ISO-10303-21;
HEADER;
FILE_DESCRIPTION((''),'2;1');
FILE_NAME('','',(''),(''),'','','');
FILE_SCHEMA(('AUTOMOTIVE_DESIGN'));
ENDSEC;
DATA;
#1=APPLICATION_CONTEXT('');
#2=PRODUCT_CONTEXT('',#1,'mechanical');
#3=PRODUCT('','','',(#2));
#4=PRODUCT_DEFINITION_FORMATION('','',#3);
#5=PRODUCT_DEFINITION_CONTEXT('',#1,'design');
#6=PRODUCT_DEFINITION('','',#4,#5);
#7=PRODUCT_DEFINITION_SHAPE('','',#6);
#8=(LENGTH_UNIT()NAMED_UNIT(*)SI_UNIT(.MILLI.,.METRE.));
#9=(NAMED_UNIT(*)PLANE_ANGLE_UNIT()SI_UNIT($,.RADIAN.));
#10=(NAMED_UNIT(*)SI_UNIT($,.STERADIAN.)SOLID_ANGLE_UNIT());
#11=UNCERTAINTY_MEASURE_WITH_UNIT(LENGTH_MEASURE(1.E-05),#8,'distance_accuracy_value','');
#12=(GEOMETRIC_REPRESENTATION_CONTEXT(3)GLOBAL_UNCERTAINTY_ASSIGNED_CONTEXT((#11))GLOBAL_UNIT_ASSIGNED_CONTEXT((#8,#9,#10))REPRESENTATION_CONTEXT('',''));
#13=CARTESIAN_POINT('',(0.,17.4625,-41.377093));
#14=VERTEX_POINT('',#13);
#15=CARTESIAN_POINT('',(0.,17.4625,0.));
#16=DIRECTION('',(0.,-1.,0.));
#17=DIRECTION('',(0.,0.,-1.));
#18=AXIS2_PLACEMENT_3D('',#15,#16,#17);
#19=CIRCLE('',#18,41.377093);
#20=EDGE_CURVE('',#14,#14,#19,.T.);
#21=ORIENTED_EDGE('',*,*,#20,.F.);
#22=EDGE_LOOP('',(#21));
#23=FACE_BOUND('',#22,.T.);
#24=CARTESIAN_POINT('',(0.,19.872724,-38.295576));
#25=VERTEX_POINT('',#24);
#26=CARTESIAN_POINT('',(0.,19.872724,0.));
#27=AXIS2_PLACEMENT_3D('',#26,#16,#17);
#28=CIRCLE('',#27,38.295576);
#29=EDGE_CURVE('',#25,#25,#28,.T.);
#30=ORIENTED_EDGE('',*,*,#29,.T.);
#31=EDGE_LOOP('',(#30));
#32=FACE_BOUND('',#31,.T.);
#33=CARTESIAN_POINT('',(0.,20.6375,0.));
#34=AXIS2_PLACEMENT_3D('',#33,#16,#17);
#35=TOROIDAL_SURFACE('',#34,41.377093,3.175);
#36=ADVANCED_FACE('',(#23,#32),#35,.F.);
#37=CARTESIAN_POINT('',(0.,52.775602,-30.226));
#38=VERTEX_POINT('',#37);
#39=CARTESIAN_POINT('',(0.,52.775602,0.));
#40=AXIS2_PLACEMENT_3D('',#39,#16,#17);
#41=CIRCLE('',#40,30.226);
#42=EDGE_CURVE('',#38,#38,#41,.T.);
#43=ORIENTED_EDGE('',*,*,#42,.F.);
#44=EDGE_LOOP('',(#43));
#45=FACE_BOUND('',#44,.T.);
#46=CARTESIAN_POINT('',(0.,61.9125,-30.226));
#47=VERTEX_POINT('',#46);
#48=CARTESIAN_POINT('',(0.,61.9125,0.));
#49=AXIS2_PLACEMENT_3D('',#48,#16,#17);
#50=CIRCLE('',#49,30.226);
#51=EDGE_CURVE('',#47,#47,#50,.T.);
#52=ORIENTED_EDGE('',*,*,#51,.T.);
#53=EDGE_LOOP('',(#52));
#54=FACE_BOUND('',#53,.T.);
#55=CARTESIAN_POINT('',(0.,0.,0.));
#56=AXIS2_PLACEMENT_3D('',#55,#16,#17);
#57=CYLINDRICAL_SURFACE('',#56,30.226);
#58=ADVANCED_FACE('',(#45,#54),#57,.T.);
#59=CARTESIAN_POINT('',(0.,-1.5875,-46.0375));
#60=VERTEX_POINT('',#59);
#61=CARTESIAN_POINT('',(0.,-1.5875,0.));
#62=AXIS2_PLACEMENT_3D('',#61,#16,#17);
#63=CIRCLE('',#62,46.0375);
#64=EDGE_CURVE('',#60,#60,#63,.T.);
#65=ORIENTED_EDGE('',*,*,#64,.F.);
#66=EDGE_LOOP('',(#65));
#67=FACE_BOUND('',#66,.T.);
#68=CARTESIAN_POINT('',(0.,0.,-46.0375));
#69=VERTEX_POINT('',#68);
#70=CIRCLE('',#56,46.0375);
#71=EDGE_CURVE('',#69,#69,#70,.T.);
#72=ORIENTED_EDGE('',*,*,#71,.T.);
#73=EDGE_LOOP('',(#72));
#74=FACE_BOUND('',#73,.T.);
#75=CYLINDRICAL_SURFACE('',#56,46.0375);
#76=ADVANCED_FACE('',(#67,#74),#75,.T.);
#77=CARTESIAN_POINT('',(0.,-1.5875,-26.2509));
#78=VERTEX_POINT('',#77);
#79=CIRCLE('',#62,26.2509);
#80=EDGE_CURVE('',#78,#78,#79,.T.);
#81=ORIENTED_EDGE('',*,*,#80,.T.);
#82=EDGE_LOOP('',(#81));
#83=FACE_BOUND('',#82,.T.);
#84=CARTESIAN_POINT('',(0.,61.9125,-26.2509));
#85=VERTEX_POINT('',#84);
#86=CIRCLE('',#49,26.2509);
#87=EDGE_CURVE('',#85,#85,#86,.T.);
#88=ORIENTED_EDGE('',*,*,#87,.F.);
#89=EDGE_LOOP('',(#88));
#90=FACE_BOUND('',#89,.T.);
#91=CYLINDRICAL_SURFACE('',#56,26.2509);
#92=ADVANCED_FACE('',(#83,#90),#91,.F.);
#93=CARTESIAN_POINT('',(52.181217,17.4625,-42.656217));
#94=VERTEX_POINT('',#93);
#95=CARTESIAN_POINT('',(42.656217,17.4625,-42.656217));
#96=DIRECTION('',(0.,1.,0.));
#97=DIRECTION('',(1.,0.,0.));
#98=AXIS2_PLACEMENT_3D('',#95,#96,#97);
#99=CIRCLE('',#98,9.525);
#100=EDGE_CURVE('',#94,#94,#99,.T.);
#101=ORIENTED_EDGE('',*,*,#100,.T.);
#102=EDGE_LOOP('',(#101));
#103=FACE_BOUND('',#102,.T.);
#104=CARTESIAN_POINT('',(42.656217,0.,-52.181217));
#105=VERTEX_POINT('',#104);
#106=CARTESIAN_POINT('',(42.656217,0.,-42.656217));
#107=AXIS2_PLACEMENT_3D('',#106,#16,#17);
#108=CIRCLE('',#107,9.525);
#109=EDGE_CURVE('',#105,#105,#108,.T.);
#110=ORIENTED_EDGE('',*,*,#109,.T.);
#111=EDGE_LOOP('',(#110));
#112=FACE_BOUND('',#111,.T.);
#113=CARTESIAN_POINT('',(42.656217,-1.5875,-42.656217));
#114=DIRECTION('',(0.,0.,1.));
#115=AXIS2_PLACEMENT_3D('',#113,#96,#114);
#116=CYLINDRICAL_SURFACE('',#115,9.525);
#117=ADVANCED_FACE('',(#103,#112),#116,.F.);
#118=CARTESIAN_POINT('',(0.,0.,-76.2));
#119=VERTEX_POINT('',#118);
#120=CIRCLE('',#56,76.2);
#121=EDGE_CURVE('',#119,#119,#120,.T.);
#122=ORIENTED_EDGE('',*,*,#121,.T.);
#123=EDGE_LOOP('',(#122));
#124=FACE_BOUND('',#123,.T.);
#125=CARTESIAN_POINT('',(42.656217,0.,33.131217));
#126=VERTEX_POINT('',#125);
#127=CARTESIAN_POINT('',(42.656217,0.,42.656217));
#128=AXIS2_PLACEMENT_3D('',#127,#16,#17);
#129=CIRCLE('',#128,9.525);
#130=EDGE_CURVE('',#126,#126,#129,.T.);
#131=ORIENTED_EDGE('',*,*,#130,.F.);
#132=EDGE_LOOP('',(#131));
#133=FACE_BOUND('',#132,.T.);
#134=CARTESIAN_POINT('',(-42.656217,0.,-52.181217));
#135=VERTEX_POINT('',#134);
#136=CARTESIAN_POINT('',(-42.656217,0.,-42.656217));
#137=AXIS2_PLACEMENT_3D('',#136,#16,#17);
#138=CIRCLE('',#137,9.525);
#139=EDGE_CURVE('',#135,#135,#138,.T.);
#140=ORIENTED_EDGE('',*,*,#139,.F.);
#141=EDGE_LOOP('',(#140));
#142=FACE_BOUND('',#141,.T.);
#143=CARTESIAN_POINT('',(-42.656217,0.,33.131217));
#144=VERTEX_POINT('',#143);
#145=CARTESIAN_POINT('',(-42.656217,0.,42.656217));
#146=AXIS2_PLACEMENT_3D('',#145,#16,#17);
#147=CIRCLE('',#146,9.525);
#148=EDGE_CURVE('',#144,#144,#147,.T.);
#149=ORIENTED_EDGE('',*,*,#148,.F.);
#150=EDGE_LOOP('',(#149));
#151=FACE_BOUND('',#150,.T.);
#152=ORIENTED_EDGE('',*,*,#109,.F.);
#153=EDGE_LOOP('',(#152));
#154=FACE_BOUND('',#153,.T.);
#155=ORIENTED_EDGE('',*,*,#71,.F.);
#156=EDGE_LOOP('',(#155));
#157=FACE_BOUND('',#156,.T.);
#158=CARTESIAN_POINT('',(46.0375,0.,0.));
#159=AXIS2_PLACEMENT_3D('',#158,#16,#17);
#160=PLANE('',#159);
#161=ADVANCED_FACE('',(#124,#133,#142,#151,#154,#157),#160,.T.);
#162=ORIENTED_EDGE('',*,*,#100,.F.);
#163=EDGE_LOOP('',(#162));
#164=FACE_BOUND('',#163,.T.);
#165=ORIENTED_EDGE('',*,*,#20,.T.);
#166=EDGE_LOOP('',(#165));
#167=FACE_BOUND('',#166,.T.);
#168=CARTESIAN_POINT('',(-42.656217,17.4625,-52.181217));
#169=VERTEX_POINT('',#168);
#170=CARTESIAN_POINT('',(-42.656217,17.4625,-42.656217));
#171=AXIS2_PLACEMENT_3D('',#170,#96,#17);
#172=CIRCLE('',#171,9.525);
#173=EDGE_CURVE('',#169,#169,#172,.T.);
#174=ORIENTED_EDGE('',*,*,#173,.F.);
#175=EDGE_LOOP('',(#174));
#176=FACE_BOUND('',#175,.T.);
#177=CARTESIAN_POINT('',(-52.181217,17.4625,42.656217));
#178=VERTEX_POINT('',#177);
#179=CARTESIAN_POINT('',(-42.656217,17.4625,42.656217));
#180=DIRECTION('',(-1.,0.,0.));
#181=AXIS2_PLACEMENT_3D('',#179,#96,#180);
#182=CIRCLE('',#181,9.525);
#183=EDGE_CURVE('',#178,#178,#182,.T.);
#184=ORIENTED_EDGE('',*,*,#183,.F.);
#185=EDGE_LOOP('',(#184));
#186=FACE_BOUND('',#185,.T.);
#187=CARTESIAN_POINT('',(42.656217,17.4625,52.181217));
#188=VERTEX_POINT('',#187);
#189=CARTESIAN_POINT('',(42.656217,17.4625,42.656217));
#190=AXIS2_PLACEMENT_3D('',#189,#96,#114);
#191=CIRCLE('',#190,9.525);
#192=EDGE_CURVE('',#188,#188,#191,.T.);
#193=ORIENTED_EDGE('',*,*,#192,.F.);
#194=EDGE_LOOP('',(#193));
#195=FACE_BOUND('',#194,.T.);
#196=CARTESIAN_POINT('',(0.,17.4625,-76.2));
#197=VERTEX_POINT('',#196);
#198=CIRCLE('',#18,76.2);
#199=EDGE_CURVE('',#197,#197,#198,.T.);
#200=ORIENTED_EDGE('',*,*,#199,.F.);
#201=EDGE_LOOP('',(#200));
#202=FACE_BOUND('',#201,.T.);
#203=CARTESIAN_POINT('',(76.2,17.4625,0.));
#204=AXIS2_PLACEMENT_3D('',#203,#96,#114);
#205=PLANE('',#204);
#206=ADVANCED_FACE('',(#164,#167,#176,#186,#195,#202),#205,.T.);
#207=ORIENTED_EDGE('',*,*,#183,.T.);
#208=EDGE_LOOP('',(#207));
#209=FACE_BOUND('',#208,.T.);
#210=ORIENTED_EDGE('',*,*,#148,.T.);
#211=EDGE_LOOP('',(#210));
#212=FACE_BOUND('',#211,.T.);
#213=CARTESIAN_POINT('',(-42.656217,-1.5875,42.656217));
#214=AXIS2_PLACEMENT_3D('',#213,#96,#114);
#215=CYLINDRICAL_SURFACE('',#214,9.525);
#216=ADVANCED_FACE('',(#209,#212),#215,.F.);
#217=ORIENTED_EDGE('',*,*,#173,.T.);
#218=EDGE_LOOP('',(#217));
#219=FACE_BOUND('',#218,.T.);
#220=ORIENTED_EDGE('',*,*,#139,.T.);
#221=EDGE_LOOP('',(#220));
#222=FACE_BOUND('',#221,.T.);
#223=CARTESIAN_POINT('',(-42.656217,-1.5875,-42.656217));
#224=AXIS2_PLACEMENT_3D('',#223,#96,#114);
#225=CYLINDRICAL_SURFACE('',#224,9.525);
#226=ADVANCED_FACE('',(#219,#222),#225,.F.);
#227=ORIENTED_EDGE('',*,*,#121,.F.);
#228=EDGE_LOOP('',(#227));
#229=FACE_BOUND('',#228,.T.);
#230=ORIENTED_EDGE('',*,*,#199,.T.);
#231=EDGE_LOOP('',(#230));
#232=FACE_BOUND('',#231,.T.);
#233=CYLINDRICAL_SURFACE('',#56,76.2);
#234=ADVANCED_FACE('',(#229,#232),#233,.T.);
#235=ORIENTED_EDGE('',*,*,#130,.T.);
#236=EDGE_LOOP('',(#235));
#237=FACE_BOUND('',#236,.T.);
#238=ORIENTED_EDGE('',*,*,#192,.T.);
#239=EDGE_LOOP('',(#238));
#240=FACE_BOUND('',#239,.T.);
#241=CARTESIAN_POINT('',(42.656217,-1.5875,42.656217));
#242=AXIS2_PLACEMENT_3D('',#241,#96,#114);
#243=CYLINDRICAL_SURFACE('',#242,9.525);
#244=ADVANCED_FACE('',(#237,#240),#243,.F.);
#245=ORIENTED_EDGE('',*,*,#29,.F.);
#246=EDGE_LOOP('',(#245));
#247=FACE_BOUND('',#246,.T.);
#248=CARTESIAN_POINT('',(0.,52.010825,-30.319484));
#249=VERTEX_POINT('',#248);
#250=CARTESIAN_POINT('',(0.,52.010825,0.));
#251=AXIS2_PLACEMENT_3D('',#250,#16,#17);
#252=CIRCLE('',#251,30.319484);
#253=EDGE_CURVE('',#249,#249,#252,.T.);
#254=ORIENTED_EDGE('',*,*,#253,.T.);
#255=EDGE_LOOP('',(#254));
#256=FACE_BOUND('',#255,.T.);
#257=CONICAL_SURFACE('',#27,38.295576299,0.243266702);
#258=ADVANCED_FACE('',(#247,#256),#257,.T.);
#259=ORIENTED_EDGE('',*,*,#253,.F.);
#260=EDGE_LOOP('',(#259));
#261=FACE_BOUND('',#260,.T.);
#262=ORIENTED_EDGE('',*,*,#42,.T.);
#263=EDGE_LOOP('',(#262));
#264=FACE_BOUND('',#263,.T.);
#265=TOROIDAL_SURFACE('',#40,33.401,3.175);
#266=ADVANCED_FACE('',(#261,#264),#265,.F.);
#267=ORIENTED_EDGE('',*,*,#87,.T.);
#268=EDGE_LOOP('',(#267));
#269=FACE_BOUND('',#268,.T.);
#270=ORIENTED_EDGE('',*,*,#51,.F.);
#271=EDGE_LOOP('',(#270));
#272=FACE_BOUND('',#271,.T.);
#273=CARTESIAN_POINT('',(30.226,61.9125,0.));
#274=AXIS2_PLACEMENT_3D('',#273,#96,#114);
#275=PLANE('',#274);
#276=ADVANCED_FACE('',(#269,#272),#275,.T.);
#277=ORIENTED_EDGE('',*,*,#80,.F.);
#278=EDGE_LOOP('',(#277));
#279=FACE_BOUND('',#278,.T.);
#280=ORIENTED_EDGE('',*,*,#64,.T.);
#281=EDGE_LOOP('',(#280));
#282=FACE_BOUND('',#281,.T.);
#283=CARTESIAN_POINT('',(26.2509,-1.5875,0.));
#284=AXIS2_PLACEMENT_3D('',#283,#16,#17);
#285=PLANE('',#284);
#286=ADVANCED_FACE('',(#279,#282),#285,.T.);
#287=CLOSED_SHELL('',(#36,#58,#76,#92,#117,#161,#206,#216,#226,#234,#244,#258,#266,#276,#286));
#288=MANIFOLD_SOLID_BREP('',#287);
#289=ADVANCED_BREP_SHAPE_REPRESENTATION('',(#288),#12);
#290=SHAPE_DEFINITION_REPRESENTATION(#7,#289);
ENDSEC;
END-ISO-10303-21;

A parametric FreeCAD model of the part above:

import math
import FreeCAD as App
import Part
import Sketcher
Q = App.Units.Quantity

doc = App.newDocument("Part")
params = doc.addObject("Spreadsheet::Sheet", "Params")
for row, (alias, value) in enumerate([
    ("sketch1_height", "2.5 in"),
    ("sketch1_radius", "0.125 in"),
    ("sketch1_width", "0.779 in"),
    ("sketch1_width2", "1.1875 in"),
    ("sketch1_height2", "0.0625 in"),
    ("revolution_angle", "360 deg"),
    ("sketch2_diameter", "0.75 in"),
], start=1):
    params.set(f"A{row}", alias)
    params.set(f"B{row}", "=" + value)
    params.setAlias(f"B{row}", alias)

body = doc.addObject("PartDesign::Body", "Body")

# Sketch on XY plane
sketch1 = body.newObject("Sketcher::SketchObject", "Sketch")
sketch1.AttachmentSupport = (doc.getObject("XY_Plane"), [""])
sketch1.MapMode = "FlatFace"
sketch1.addGeometry([
    Part.LineSegment(App.Vector(26.3, 61.9, 0), App.Vector(26.3, -1.6, 0)),  # 0
    Part.LineSegment(App.Vector(26.3, -1.6, 0), App.Vector(46, -1.6, 0)),  # 1
    Part.LineSegment(App.Vector(46, -1.6, 0), App.Vector(46, 0, 0)),  # 2
    Part.LineSegment(App.Vector(46, 0, 0), App.Vector(76.2, 0, 0)),  # 3
    Part.LineSegment(App.Vector(76.2, 0, 0), App.Vector(76.2, 17.5, 0)),  # 4
    Part.LineSegment(App.Vector(76.2, 17.5, 0), App.Vector(41.4, 17.5, 0)),  # 5
    Part.ArcOfCircle(Part.Circle(App.Vector(41.4, 20.6, 0), App.Vector(0, 0, 1), 3.2), math.radians(-166), math.radians(-90)),  # 6
    Part.LineSegment(App.Vector(38.3, 19.9, 0), App.Vector(30.3, 52, 0)),  # 7
    Part.ArcOfCircle(Part.Circle(App.Vector(33.4, 52.8, 0), App.Vector(0, 0, 1), 3.2), math.radians(180), math.radians(193.94)),  # 8
    Part.LineSegment(App.Vector(30.2, 52.8, 0), App.Vector(30.2, 61.9, 0)),  # 9
    Part.LineSegment(App.Vector(30.2, 61.9, 0), App.Vector(26.3, 61.9, 0)),  # 10
], False)
sketch1.addConstraint([
    Sketcher.Constraint("Coincident", 0, 2, 1, 1),
    Sketcher.Constraint("Coincident", 1, 2, 2, 1),
    Sketcher.Constraint("Coincident", 2, 2, 3, 1),
    Sketcher.Constraint("Coincident", 3, 2, 4, 1),
    Sketcher.Constraint("Coincident", 4, 2, 5, 1),
    Sketcher.Constraint("Tangent", 5, 2, 6, 2),
    Sketcher.Constraint("Tangent", 6, 1, 7, 1),
    Sketcher.Constraint("Tangent", 7, 2, 8, 2),
    Sketcher.Constraint("Tangent", 8, 1, 9, 1),
    Sketcher.Constraint("Coincident", 9, 2, 10, 1),
    Sketcher.Constraint("Coincident", 10, 2, 0, 1),
    Sketcher.Constraint("Vertical", 0),
    Sketcher.Constraint("Horizontal", 1),
    Sketcher.Constraint("Vertical", 2),
    Sketcher.Constraint("Horizontal", 3),
    Sketcher.Constraint("Vertical", 4),
    Sketcher.Constraint("Horizontal", 5),
    Sketcher.Constraint("Vertical", 9),
    Sketcher.Constraint("Horizontal", 10),
    Sketcher.Constraint("Equal", 6, 8),
    Sketcher.Constraint("PointOnObject", 2, 2, -1),
    Sketcher.Constraint("DistanceY", 0, 2, 0, 1, Q("2.5 in")),
    Sketcher.Constraint("DistanceX", -1, 1, 3, 2, Q("3 in")),
    Sketcher.Constraint("Radius", 6, Q("0.125 in")),
    Sketcher.Constraint("DistanceX", 1, 1, 1, 2, Q("0.779 in")),
    Sketcher.Constraint("DistanceX", 3, 1, 3, 2, Q("1.1875 in")),
    Sketcher.Constraint("DistanceY", 2, 1, 2, 2, Q("0.0625 in")),
    Sketcher.Constraint("DistanceY", 4, 1, 4, 2, Q("0.6875 in")),
    Sketcher.Constraint("DistanceX", -1, 1, 8, 1, Q("1.19 in")),
    Sketcher.Constraint("DistanceY", 9, 1, 9, 2, Q("9.136898 mm")),
    Sketcher.Constraint("DistanceX", -1, 1, 6, 1, Q("1.5076999 in")),
])
sketch1.setExpression("Constraints[21]", "Params.sketch1_height")
sketch1.setExpression("Constraints[23]", "Params.sketch1_radius")
sketch1.setExpression("Constraints[24]", "Params.sketch1_width")
sketch1.setExpression("Constraints[25]", "Params.sketch1_width2")
sketch1.setExpression("Constraints[26]", "Params.sketch1_height2")
revolution = body.newObject("PartDesign::Revolution", "Revolution")
revolution.Profile = sketch1
revolution.ReferenceAxis = (sketch1, ["V_Axis"])
revolution.setExpression("Angle", "Params.revolution_angle")

# Sketch on XZ plane
sketch2 = body.newObject("Sketcher::SketchObject", "Sketch001")
sketch2.AttachmentSupport = (doc.getObject("XZ_Plane"), [""])
sketch2.MapMode = "FlatFace"
sketch2.AttachmentOffset = App.Placement(App.Vector(0, 0, -0.6875 * 25.4), App.Rotation())
sketch2.addGeometry(Part.Circle(App.Vector(43, 43, 0), App.Vector(0, 0, 1), 10), False)
sketch2.addConstraint([
    Sketcher.Constraint("Diameter", 0, Q("0.75 in")),
    Sketcher.Constraint("DistanceX", -1, 1, 0, 3, Q("42.656217 mm")),
    Sketcher.Constraint("DistanceY", -1, 1, 0, 3, Q("42.656217 mm")),
])
sketch2.setExpression("Constraints[0]", "Params.sketch2_diameter")
pocket1 = body.newObject("PartDesign::Pocket", "Pocket")
pocket1.Profile = sketch2
pocket1.Type = "ThroughAll"
pocket1.Reversed = True
doc.recompute()

polarpattern = body.newObject("PartDesign::PolarPattern", "PolarPattern")
polarpattern.Originals = [pocket1]
polarpattern.Axis = (doc.getObject("Y_Axis"), [""])
polarpattern.Angle = 360
polarpattern.Occurrences = 4
body.Tip = polarpattern

doc.recompute()
